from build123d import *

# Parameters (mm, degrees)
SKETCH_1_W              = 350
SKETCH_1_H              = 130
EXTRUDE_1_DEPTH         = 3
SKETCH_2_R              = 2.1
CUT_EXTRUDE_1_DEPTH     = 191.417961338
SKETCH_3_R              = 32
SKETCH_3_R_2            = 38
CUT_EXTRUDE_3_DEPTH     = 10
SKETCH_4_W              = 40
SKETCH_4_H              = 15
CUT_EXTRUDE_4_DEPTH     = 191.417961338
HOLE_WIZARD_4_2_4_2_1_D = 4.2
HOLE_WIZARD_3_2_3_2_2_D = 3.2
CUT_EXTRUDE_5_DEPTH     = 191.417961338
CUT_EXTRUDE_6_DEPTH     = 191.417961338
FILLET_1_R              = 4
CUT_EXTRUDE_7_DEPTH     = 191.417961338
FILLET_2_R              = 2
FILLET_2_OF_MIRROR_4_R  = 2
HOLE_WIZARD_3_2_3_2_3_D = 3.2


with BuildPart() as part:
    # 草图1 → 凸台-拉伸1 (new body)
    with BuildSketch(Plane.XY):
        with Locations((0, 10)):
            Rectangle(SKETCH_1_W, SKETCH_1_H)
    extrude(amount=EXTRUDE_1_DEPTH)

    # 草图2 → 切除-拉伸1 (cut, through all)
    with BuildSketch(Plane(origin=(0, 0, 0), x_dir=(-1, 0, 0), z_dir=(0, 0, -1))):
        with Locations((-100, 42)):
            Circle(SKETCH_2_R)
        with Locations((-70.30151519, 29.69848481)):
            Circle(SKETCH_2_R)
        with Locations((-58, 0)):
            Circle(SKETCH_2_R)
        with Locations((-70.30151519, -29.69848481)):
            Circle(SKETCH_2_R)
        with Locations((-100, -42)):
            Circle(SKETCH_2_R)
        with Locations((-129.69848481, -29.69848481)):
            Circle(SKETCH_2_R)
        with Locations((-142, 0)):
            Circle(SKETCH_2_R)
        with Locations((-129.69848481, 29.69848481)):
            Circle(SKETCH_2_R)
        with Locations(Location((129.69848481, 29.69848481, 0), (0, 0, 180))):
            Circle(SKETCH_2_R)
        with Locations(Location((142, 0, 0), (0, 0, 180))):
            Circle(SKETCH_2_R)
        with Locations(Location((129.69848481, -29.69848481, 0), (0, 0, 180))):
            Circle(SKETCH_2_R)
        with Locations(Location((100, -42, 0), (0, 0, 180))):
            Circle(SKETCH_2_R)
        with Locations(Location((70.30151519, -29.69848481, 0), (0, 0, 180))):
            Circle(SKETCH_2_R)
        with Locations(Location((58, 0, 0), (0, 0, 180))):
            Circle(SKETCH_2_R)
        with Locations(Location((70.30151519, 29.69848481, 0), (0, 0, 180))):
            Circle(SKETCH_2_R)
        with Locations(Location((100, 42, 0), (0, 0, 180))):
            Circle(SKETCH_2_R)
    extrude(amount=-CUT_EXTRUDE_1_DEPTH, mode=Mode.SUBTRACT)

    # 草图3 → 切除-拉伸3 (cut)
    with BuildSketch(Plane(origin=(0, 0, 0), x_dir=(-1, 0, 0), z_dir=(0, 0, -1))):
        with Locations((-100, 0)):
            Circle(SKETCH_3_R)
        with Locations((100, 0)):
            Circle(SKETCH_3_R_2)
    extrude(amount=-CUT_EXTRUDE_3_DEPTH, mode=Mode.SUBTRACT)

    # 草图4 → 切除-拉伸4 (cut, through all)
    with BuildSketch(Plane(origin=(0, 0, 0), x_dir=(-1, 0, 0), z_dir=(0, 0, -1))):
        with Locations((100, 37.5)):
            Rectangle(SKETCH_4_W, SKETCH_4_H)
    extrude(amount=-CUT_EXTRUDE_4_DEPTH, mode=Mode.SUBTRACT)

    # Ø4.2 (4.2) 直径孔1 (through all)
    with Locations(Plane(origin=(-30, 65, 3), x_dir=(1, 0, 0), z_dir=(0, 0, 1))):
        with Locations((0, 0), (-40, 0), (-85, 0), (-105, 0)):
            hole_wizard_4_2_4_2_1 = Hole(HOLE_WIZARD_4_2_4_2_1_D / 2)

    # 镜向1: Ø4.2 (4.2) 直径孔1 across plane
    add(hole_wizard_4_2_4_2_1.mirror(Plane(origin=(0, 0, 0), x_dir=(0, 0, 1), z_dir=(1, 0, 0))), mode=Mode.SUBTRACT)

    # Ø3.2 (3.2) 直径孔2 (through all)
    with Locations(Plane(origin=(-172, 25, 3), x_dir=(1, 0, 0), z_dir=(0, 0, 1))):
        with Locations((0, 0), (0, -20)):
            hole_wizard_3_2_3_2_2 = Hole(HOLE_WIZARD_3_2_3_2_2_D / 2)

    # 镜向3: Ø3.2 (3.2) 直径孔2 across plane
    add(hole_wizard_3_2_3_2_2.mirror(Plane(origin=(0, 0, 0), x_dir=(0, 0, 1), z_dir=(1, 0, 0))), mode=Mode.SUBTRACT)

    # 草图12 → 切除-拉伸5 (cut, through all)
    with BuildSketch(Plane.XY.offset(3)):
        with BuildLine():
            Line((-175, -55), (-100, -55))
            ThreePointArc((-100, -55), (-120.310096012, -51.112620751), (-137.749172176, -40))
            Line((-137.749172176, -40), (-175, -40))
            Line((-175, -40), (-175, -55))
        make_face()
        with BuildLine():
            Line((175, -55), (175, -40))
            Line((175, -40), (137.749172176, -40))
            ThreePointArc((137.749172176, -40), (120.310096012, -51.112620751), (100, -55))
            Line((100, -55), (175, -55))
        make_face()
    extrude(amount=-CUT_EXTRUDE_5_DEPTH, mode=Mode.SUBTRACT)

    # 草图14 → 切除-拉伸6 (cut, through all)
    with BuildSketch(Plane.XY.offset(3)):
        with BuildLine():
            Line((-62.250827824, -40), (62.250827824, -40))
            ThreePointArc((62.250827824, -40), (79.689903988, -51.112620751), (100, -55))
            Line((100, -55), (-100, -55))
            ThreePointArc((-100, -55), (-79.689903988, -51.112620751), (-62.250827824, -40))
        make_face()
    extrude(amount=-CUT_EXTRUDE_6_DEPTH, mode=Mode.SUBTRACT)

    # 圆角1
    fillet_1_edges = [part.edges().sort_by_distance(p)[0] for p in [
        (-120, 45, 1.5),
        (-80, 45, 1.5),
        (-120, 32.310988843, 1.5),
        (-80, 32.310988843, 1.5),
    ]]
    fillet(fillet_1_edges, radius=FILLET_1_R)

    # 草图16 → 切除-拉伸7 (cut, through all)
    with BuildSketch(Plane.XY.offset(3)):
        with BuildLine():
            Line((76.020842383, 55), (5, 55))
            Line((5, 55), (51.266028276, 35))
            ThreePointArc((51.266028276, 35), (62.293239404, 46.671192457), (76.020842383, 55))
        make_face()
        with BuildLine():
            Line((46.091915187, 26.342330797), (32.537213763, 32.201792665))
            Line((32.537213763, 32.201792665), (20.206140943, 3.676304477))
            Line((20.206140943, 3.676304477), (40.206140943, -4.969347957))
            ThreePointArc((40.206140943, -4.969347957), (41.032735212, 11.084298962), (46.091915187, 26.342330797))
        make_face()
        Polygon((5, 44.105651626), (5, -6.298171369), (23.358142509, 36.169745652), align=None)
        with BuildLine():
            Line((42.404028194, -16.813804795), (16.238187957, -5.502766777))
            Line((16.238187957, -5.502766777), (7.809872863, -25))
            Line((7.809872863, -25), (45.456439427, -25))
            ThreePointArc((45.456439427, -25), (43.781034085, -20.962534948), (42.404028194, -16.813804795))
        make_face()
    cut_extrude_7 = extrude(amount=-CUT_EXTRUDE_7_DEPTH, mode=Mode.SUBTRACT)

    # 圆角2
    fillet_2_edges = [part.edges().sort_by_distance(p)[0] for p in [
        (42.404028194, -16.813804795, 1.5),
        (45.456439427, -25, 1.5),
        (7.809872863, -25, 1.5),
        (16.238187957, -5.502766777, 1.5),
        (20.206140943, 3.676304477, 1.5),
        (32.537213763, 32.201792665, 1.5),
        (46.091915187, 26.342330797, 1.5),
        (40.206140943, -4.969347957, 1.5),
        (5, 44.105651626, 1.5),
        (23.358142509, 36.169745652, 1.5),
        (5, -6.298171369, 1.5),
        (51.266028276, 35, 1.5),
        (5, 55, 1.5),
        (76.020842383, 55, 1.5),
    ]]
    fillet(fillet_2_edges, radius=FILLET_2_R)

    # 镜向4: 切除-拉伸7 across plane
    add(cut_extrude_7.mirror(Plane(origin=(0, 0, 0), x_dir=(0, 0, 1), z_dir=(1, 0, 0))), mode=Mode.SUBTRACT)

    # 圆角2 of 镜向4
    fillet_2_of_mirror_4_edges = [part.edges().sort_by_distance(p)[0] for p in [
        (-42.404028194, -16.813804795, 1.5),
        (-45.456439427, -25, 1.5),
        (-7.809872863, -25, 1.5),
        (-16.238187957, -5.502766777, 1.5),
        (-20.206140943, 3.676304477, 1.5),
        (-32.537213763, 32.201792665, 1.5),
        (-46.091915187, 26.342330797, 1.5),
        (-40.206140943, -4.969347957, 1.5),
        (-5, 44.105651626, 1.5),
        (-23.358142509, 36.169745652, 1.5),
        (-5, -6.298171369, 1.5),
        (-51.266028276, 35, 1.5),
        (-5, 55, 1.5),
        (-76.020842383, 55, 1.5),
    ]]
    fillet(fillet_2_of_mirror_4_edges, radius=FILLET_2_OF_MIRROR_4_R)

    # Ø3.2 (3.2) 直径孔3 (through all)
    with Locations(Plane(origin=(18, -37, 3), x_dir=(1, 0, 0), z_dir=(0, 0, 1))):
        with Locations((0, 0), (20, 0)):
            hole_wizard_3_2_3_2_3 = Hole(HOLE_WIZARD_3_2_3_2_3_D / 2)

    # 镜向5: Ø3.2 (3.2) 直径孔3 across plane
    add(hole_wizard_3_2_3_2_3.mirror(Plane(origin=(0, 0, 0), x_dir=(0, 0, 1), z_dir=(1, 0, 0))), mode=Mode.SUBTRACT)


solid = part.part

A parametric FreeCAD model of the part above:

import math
import FreeCAD as App
import Part
import Sketcher
Q = App.Units.Quantity


def edges_at(feature, points):
    """Names of the edges that pass closest to the given points."""
    edges = feature.Shape.Edges
    near = lambda p: min(range(len(edges)), key=lambda i: edges[i].distToShape(Part.Vertex(*p))[0])
    return sorted({f"Edge{near(p) + 1}" for p in points})

doc = App.newDocument("Part")
body = doc.addObject("PartDesign::Body", "Body")

sketch1 = doc.addObject("Sketcher::SketchObject", "Sketch")
body.addObject(sketch1)
sketch1.AttachmentSupport = (doc.XY_Plane, [""])
sketch1.MapMode = "FlatFace"
sketch1.addGeometry(Part.LineSegment(App.Vector(-175, 75, 0), App.Vector(-175, -55, 0)), False)
sketch1.addGeometry(Part.LineSegment(App.Vector(-175, -55, 0), App.Vector(175, -55, 0)), False)
sketch1.addGeometry(Part.LineSegment(App.Vector(175, -55, 0), App.Vector(175, 75, 0)), False)
sketch1.addGeometry(Part.LineSegment(App.Vector(175, 75, 0), App.Vector(-175, 75, 0)), False)
sketch1.addConstraint(Sketcher.Constraint("Coincident", 0, 2, 1, 1))
sketch1.addConstraint(Sketcher.Constraint("Coincident", 1, 2, 2, 1))
sketch1.addConstraint(Sketcher.Constraint("Coincident", 2, 2, 3, 1))
sketch1.addConstraint(Sketcher.Constraint("Coincident", 3, 2, 0, 1))
sketch1.addConstraint(Sketcher.Constraint("Vertical", 0))
sketch1.addConstraint(Sketcher.Constraint("Horizontal", 1))
sketch1.addConstraint(Sketcher.Constraint("Vertical", 2))
sketch1.addConstraint(Sketcher.Constraint("Horizontal", 3))
sketch1.addConstraint(Sketcher.Constraint("DistanceX", 1, 1, 1, 2, Q("350 mm")))
sketch1.addConstraint(Sketcher.Constraint("DistanceY", 0, 2, 0, 1, Q("130 mm")))
sketch1.addConstraint(Sketcher.Constraint("DistanceX", 0, 2, -1, 1, Q("175 mm")))
sketch1.addConstraint(Sketcher.Constraint("DistanceY", 0, 2, -1, 1, Q("55 mm")))
pad1 = doc.addObject("PartDesign::Pad", "Pad")
body.addObject(pad1)
pad1.Profile = sketch1
pad1.Length = 3

sketch2 = doc.addObject("Sketcher::SketchObject", "Sketch001")
body.addObject(sketch2)
sketch2.AttachmentSupport = (doc.XY_Plane, [""])
sketch2.MapMode = "FlatFace"
sketch2.addGeometry(Part.Circle(App.Vector(100, 42, 0), App.Vector(0, 0, 1), 2.1), False)
sketch2.addGeometry(Part.Circle(App.Vector(70.3, 29.7, 0), App.Vector(0, 0, 1), 2.1), False)
sketch2.addGeometry(Part.Circle(App.Vector(58, 0, 0), App.Vector(0, 0, 1), 2.1), False)
sketch2.addGeometry(Part.Circle(App.Vector(70.3, -29.7, 0), App.Vector(0, 0, 1), 2.1), False)
sketch2.addGeometry(Part.Circle(App.Vector(100, -42, 0), App.Vector(0, 0, 1), 2.1), False)
sketch2.addGeometry(Part.Circle(App.Vector(129.7, -29.7, 0), App.Vector(0, 0, 1), 2.1), False)
sketch2.addGeometry(Part.Circle(App.Vector(142, 0, 0), App.Vector(0, 0, 1), 2.1), False)
sketch2.addGeometry(Part.Circle(App.Vector(129.7, 29.7, 0), App.Vector(0, 0, 1), 2.1), False)
sketch2.addGeometry(Part.Circle(App.Vector(-129.7, 29.7, 0), App.Vector(0, 0, 1), 2.1), False)
sketch2.addGeometry(Part.Circle(App.Vector(-142, 0, 0), App.Vector(0, 0, 1), 2.1), False)
sketch2.addGeometry(Part.Circle(App.Vector(-129.7, -29.7, 0), App.Vector(0, 0, 1), 2.1), False)
sketch2.addGeometry(Part.Circle(App.Vector(-100, -42, 0), App.Vector(0, 0, 1), 2.1), False)
sketch2.addGeometry(Part.Circle(App.Vector(-70.3, -29.7, 0), App.Vector(0, 0, 1), 2.1), False)
sketch2.addGeometry(Part.Circle(App.Vector(-58, 0, 0), App.Vector(0, 0, 1), 2.1), False)
sketch2.addGeometry(Part.Circle(App.Vector(-70.3, 29.7, 0), App.Vector(0, 0, 1), 2.1), False)
sketch2.addGeometry(Part.Circle(App.Vector(-100, 42, 0), App.Vector(0, 0, 1), 2.1), False)
sketch2.addConstraint(Sketcher.Constraint("Equal", 0, 1))
sketch2.addConstraint(Sketcher.Constraint("Equal", 1, 2))
sketch2.addConstraint(Sketcher.Constraint("Equal", 2, 3))
sketch2.addConstraint(Sketcher.Constraint("Equal", 3, 4))
sketch2.addConstraint(Sketcher.Constraint("Equal", 4, 5))
sketch2.addConstraint(Sketcher.Constraint("Equal", 5, 6))
sketch2.addConstraint(Sketcher.Constraint("Equal", 6, 7))
sketch2.addConstraint(Sketcher.Constraint("Equal", 7, 8))
sketch2.addConstraint(Sketcher.Constraint("Equal", 8, 9))
sketch2.addConstraint(Sketcher.Constraint("Equal", 9, 10))
sketch2.addConstraint(Sketcher.Constraint("Equal", 10, 11))
sketch2.addConstraint(Sketcher.Constraint("Equal", 11, 12))
sketch2.addConstraint(Sketcher.Constraint("Equal", 12, 13))
sketch2.addConstraint(Sketcher.Constraint("Equal", 13, 14))
sketch2.addConstraint(Sketcher.Constraint("Equal", 14, 15))
sketch2.addConstraint(Sketcher.Constraint("Symmetric", 5, 3, 8, 3, -1, 1))
sketch2.addConstraint(Sketcher.Constraint("Symmetric", 6, 3, 9, 3, -1, 1))
sketch2.addConstraint(Sketcher.Constraint("Symmetric", 7, 3, 10, 3, -1, 1))
sketch2.addConstraint(Sketcher.Constraint("Symmetric", 0, 3, 11, 3, -1, 1))
sketch2.addConstraint(Sketcher.Constraint("Symmetric", 1, 3, 12, 3, -1, 1))
sketch2.addConstraint(Sketcher.Constraint("Symmetric", 2, 3, 13, 3, -1, 1))
sketch2.addConstraint(Sketcher.Constraint("Symmetric", 3, 3, 14, 3, -1, 1))
sketch2.addConstraint(Sketcher.Constraint("Symmetric", 4, 3, 15, 3, -1, 1))
sketch2.addConstraint(Sketcher.Constraint("Symmetric", 7, 3, 8, 3, -2))
sketch2.addConstraint(Sketcher.Constraint("Symmetric", 4, 3, 11, 3, -2))
sketch2.addConstraint(Sketcher.Constraint("Symmetric", 3, 3, 12, 3, -2))
sketch2.addConstraint(Sketcher.Constraint("PointOnObject", 2, 3, -1))
sketch2.addConstraint(Sketcher.Constraint("PointOnObject", 6, 3, -1))
sketch2.addConstraint(Sketcher.Constraint("Horizontal", 3, 3, 5, 3))
sketch2.addConstraint(Sketcher.Constraint("Diameter", 0, Q("4.2 mm")))
sketch2.addConstraint(Sketcher.Constraint("DistanceX", -1, 1, 0, 3, Q("100 mm")))
sketch2.addConstraint(Sketcher.Constraint("DistanceY", -1, 1, 0, 3, Q("42 mm")))
sketch2.addConstraint(Sketcher.Constraint("DistanceX", -1, 1, 2, 3, Q("58 mm")))
sketch2.addConstraint(Sketcher.Constraint("DistanceX", -1, 1, 6, 3, Q("142 mm")))
sketch2.addConstraint(Sketcher.Constraint("DistanceX", 8, 3, 1, 3, Q("200 mm")))
sketch2.addConstraint(Sketcher.Constraint("DistanceY", 3, 3, 1, 3, Q("59.39697 mm")))
sketch2.addConstraint(Sketcher.Constraint("DistanceX", 3, 3, 5, 3, Q("59.39697 mm")))
pocket1 = doc.addObject("PartDesign::Pocket", "Pocket")
body.addObject(pocket1)
pocket1.Profile = sketch2
pocket1.Type = "ThroughAll"
pocket1.Reversed = True

sketch3 = doc.addObject("Sketcher::SketchObject", "Sketch002")
body.addObject(sketch3)
sketch3.AttachmentSupport = (doc.XY_Plane, [""])
sketch3.MapMode = "FlatFace"
sketch3.addGeometry(Part.Circle(App.Vector(100, 0, 0), App.Vector(0, 0, 1), 32), False)
sketch3.addGeometry(Part.Circle(App.Vector(-100, 0, 0), App.Vector(0, 0, 1), 38), False)
sketch3.addConstraint(Sketcher.Constraint("Symmetric", 0, 3, 1, 3, -1, 1))
sketch3.addConstraint(Sketcher.Constraint("PointOnObject", 0, 3, -1))
sketch3.addConstraint(Sketcher.Constraint("Diameter", 0, Q("64 mm")))
sketch3.addConstraint(Sketcher.Constraint("Diameter", 1, Q("76 mm")))
sketch3.addConstraint(Sketcher.Constraint("DistanceX", -1, 1, 0, 3, Q("100 mm")))
pocket2 = doc.addObject("PartDesign::Pocket", "Pocket001")
body.addObject(pocket2)
pocket2.Profile = sketch3
pocket2.Length = 10
pocket2.Reversed = True

sketch4 = doc.addObject("Sketcher::SketchObject", "Sketch003")
body.addObject(sketch4)
sketch4.AttachmentSupport = (doc.XY_Plane, [""])
sketch4.MapMode = "FlatFace"
sketch4.addGeometry(Part.LineSegment(App.Vector(-80, 45, 0), App.Vector(-80, 30, 0)), False)
sketch4.addGeometry(Part.LineSegment(App.Vector(-80, 30, 0), App.Vector(-120, 30, 0)), False)
sketch4.addGeometry(Part.LineSegment(App.Vector(-120, 30, 0), App.Vector(-120, 45, 0)), False)
sketch4.addGeometry(Part.LineSegment(App.Vector(-120, 45, 0), App.Vector(-80, 45, 0)), False)
sketch4.addConstraint(Sketcher.Constraint("Coincident", 0, 2, 1, 1))
sketch4.addConstraint(Sketcher.Constraint("Coincident", 1, 2, 2, 1))
sketch4.addConstraint(Sketcher.Constraint("Coincident", 2, 2, 3, 1))
sketch4.addConstraint(Sketcher.Constraint("Coincident", 3, 2, 0, 1))
sketch4.addConstraint(Sketcher.Constraint("Vertical", 0))
sketch4.addConstraint(Sketcher.Constraint("Horizontal", 1))
sketch4.addConstraint(Sketcher.Constraint("Vertical", 2))
sketch4.addConstraint(Sketcher.Constraint("Horizontal", 3))
sketch4.addConstraint(Sketcher.Constraint("DistanceX", 1, 2, 1, 1, Q("40 mm")))
sketch4.addConstraint(Sketcher.Constraint("DistanceY", 0, 2, 0, 1, Q("15 mm")))
sketch4.addConstraint(Sketcher.Constraint("DistanceX", 0, 2, -1, 1, Q("80 mm")))
sketch4.addConstraint(Sketcher.Constraint("DistanceY", -1, 1, 0, 2, Q("30 mm")))
pocket3 = doc.addObject("PartDesign::Pocket", "Pocket002")
body.addObject(pocket3)
pocket3.Profile = sketch4
pocket3.Type = "ThroughAll"
pocket3.Reversed = True

sketch5 = doc.addObject("Sketcher::SketchObject", "Sketch004")
body.addObject(sketch5)
sketch5.AttachmentSupport = (doc.XY_Plane, [""])
sketch5.MapMode = "FlatFace"
sketch5.AttachmentOffset = App.Placement(App.Vector(0, 0, 3), App.Rotation())
sketch5.addGeometry(Part.Circle(App.Vector(-30, 65, 0), App.Vector(0, 0, 1), 2.1), False)
sketch5.addGeometry(Part.Circle(App.Vector(-70, 65, 0), App.Vector(0, 0, 1), 2.1), False)
sketch5.addGeometry(Part.Circle(App.Vector(-115, 65, 0), App.Vector(0, 0, 1), 2.1), False)
sketch5.addGeometry(Part.Circle(App.Vector(-135, 65, 0), App.Vector(0, 0, 1), 2.1), False)
sketch5.addConstraint(Sketcher.Constraint("Equal", 0, 1))
sketch5.addConstraint(Sketcher.Constraint("Equal", 1, 2))
sketch5.addConstraint(Sketcher.Constraint("Equal", 2, 3))
sketch5.addConstraint(Sketcher.Constraint("Horizontal", 0, 3, 1, 3))
sketch5.addConstraint(Sketcher.Constraint("Horizontal", 1, 3, 2, 3))
sketch5.addConstraint(Sketcher.Constraint("Horizontal", 2, 3, 3, 3))
sketch5.addConstraint(Sketcher.Constraint("Diameter", 0, Q("4.2 mm")))
sketch5.addConstraint(Sketcher.Constraint("DistanceX", 0, 3, -1, 1, Q("30 mm")))
sketch5.addConstraint(Sketcher.Constraint("DistanceY", -1, 1, 0, 3, Q("65 mm")))
sketch5.addConstraint(Sketcher.Constraint("DistanceX", 1, 3, -1, 1, Q("70 mm")))
sketch5.addConstraint(Sketcher.Constraint("DistanceX", 2, 3, -1, 1, Q("115 mm")))
sketch5.addConstraint(Sketcher.Constraint("DistanceX", 3, 3, -1, 1, Q("135 mm")))
doc.recompute()
hole = doc.addObject("PartDesign::Hole", "Hole")
body.addObject(hole)
hole.Profile = sketch5
hole.ThreadType = "None"
hole.Diameter = 4.2
hole.DepthType = "ThroughAll"
doc.recompute()

mirrored = doc.addObject("PartDesign::Mirrored", "Mirrored")
body.addObject(mirrored)
mirrored.Originals = [hole]
mirrored.MirrorPlane = (doc.YZ_Plane, [""])
body.Tip = mirrored

sketch6 = doc.addObject("Sketcher::SketchObject", "Sketch005")
body.addObject(sketch6)
sketch6.AttachmentSupport = (doc.XY_Plane, [""])
sketch6.MapMode = "FlatFace"
sketch6.AttachmentOffset = App.Placement(App.Vector(0, 0, 3), App.Rotation())
sketch6.addGeometry(Part.Circle(App.Vector(-172, 25, 0), App.Vector(0, 0, 1), 1.6), False)
sketch6.addGeometry(Part.Circle(App.Vector(-172, 5, 0), App.Vector(0, 0, 1), 1.6), False)
sketch6.addConstraint(Sketcher.Constraint("Equal", 0, 1))
sketch6.addConstraint(Sketcher.Constraint("Vertical", 0, 3, 1, 3))
sketch6.addConstraint(Sketcher.Constraint("Diameter", 0, Q("3.2 mm")))
sketch6.addConstraint(Sketcher.Constraint("DistanceX", 0, 3, -1, 1, Q("172 mm")))
sketch6.addConstraint(Sketcher.Constraint("DistanceY", -1, 1, 0, 3, Q("25 mm")))
sketch6.addConstraint(Sketcher.Constraint("DistanceY", -1, 1, 1, 3, Q("5 mm")))
doc.recompute()
hole2 = doc.addObject("PartDesign::Hole", "Hole001")
body.addObject(hole2)
hole2.Profile = sketch6
hole2.ThreadType = "None"
hole2.Diameter = 3.2
hole2.DepthType = "ThroughAll"
doc.recompute()

mirrored2 = doc.addObject("PartDesign::Mirrored", "Mirrored001")
body.addObject(mirrored2)
mirrored2.Originals = [hole2]
mirrored2.MirrorPlane = (doc.YZ_Plane, [""])
body.Tip = mirrored2

sketch7 = doc.addObject("Sketcher::SketchObject", "Sketch006")
body.addObject(sketch7)
sketch7.AttachmentSupport = (doc.XY_Plane, [""])
sketch7.MapMode = "FlatFace"
sketch7.AttachmentOffset = App.Placement(App.Vector(0, 0, 3), App.Rotation())
sketch7.addGeometry(Part.LineSegment(App.Vector(-175, -55, 0), App.Vector(-100, -55, 0)), False)
sketch7.addGeometry(Part.ArcOfCircle(Part.Circle(App.Vector(-100, 0, 0), App.Vector(0, 0, 1), 55), math.radians(-133), math.radians(-90)), False)
sketch7.addGeometry(Part.LineSegment(App.Vector(-138, -40, 0), App.Vector(-175, -40, 0)), False)
sketch7.addGeometry(Part.LineSegment(App.Vector(-175, -40, 0), App.Vector(-175, -55, 0)), False)
sketch7.addGeometry(Part.LineSegment(App.Vector(175, -55, 0), App.Vector(175, -40, 0)), False)
sketch7.addGeometry(Part.LineSegment(App.Vector(175, -40, 0), App.Vector(138, -40, 0)), False)
sketch7.addGeometry(Part.ArcOfCircle(Part.Circle(App.Vector(100, 0, 0), App.Vector(0, 0, 1), 55), math.radians(-90), math.radians(-47)), False)
sketch7.addGeometry(Part.LineSegment(App.Vector(100, -55, 0), App.Vector(175, -55, 0)), False)
sketch7.addConstraint(Sketcher.Constraint("Tangent", 0, 2, 1, 2))
sketch7.addConstraint(Sketcher.Constraint("Coincident", 1, 1, 2, 1))
sketch7.addConstraint(Sketcher.Constraint("Coincident", 2, 2, 3, 1))
sketch7.addConstraint(Sketcher.Constraint("Coincident", 3, 2, 0, 1))
sketch7.addConstraint(Sketcher.Constraint("Coincident", 4, 2, 5, 1))
sketch7.addConstraint(Sketcher.Constraint("Coincident", 5, 2, 6, 2))
sketch7.addConstraint(Sketcher.Constraint("Tangent", 6, 1, 7, 1))
sketch7.addConstraint(Sketcher.Constraint("Coincident", 7, 2, 4, 1))
sketch7.addConstraint(Sketcher.Constraint("Horizontal", 0))
sketch7.addConstraint(Sketcher.Constraint("Horizontal", 2))
sketch7.addConstraint(Sketcher.Constraint("Vertical", 3))
sketch7.addConstraint(Sketcher.Constraint("Vertical", 4))
sketch7.addConstraint(Sketcher.Constraint("Horizontal", 5))
sketch7.addConstraint(Sketcher.Constraint("Horizontal", 7))
sketch7.addConstraint(Sketcher.Constraint("Equal", 1, 6))
sketch7.addConstraint(Sketcher.Constraint("Symmetric", 1, 3, 6, 3, -1, 1))
sketch7.addConstraint(Sketcher.Constraint("Symmetric", 2, 2, 4, 2, -2))
sketch7.addConstraint(Sketcher.Constraint("PointOnObject", 1, 3, -1))
sketch7.addConstraint(Sketcher.Constraint("Radius", 1, Q("55 mm")))
sketch7.addConstraint(Sketcher.Constraint("DistanceX", 0, 1, 0, 2, Q("75 mm")))
sketch7.addConstraint(Sketcher.Constraint("DistanceY", 3, 2, 3, 1, Q("15 mm")))
sketch7.addConstraint(Sketcher.Constraint("DistanceX", 1, 3, -1, 1, Q("100 mm")))
pocket4 = doc.addObject("PartDesign::Pocket", "Pocket003")
body.addObject(pocket4)
pocket4.Profile = sketch7
pocket4.Type = "ThroughAll"

sketch8 = doc.addObject("Sketcher::SketchObject", "Sketch007")
body.addObject(sketch8)
sketch8.AttachmentSupport = (doc.XY_Plane, [""])
sketch8.MapMode = "FlatFace"
sketch8.AttachmentOffset = App.Placement(App.Vector(0, 0, 3), App.Rotation())
sketch8.addGeometry(Part.LineSegment(App.Vector(62, -40, 0), App.Vector(-62, -40, 0)), False)
sketch8.addGeometry(Part.ArcOfCircle(Part.Circle(App.Vector(-100, 0, 0), App.Vector(0, 0, 1), 55), math.radians(-90), math.radians(-47)), False)
sketch8.addGeometry(Part.LineSegment(App.Vector(-100, -55, 0), App.Vector(100, -55, 0)), False)
sketch8.addGeometry(Part.ArcOfCircle(Part.Circle(App.Vector(100, 0, 0), App.Vector(0, 0, 1), 55), math.radians(-133), math.radians(-90)), False)
sketch8.addConstraint(Sketcher.Constraint("Coincident", 0, 2, 1, 2))
sketch8.addConstraint(Sketcher.Constraint("Tangent", 1, 1, 2, 1))
sketch8.addConstraint(Sketcher.Constraint("Tangent", 2, 2, 3, 2))
sketch8.addConstraint(Sketcher.Constraint("Coincident", 3, 1, 0, 1))
sketch8.addConstraint(Sketcher.Constraint("Horizontal", 0))
sketch8.addConstraint(Sketcher.Constraint("Horizontal", 2))
sketch8.addConstraint(Sketcher.Constraint("Equal", 1, 3))
sketch8.addConstraint(Sketcher.Constraint("Symmetric", 1, 3, 3, 3, -1, 1))
sketch8.addConstraint(Sketcher.Constraint("Radius", 1, Q("55 mm")))
sketch8.addConstraint(Sketcher.Constraint("DistanceX", 2, 1, 2, 2, Q("200 mm")))
sketch8.addConstraint(Sketcher.Constraint("DistanceY", 0, 2, -1, 1, Q("40 mm")))
pocket5 = doc.addObject("PartDesign::Pocket", "Pocket004")
body.addObject(pocket5)
pocket5.Profile = sketch8
pocket5.Type = "ThroughAll"
doc.recompute()

fillet = doc.addObject("PartDesign::Fillet", "Fillet")
body.addObject(fillet)
fillet.Base = (pocket5, edges_at(pocket5, [
    (-120, 45, 1.5),
    (-80, 45, 1.5),
    (-120, 32.311, 1.5),
    (-80, 32.311, 1.5),
]))
fillet.Radius = 4

sketch9 = doc.addObject("Sketcher::SketchObject", "Sketch008")
body.addObject(sketch9)
sketch9.AttachmentSupport = (doc.XY_Plane, [""])
sketch9.MapMode = "FlatFace"
sketch9.AttachmentOffset = App.Placement(App.Vector(0, 0, 3), App.Rotation())
sketch9.addGeometry(Part.LineSegment(App.Vector(76, 55, 0), App.Vector(5, 55, 0)), False)
sketch9.addGeometry(Part.LineSegment(App.Vector(5, 55, 0), App.Vector(51, 35, 0)), False)
sketch9.addGeometry(Part.ArcOfCircle(Part.Circle(App.Vector(100, 0, 0), App.Vector(0, 0, 1), 60), math.radians(114), math.radians(144)), False)
sketch9.addGeometry(Part.LineSegment(App.Vector(46, 26, 0), App.Vector(33, 32, 0)), False)
sketch9.addGeometry(Part.LineSegment(App.Vector(33, 32, 0), App.Vector(20, 4, 0)), False)
sketch9.addGeometry(Part.LineSegment(App.Vector(20, 4, 0), App.Vector(40, -5, 0)), False)
sketch9.addGeometry(Part.ArcOfCircle(Part.Circle(App.Vector(100, 0, 0), App.Vector(0, 0, 1), 60), math.radians(154), math.radians(185)), False)
sketch9.addGeometry(Part.LineSegment(App.Vector(5, 44, 0), App.Vector(5, -6, 0)), False)
sketch9.addGeometry(Part.LineSegment(App.Vector(5, -6, 0), App.Vector(23, 36, 0)), False)
sketch9.addGeometry(Part.LineSegment(App.Vector(23, 36, 0), App.Vector(5, 44, 0)), False)
sketch9.addGeometry(Part.LineSegment(App.Vector(42, -17, 0), App.Vector(16, -6, 0)), False)
sketch9.addGeometry(Part.LineSegment(App.Vector(16, -6, 0), App.Vector(8, -25, 0)), False)
sketch9.addGeometry(Part.LineSegment(App.Vector(8, -25, 0), App.Vector(45, -25, 0)), False)
sketch9.addGeometry(Part.ArcOfCircle(Part.Circle(App.Vector(100, 0, 0), App.Vector(0, 0, 1), 60), math.radians(-163.73), math.radians(-155.38)), False)
sketch9.addConstraint(Sketcher.Constraint("Coincident", 0, 2, 1, 1))
sketch9.addConstraint(Sketcher.Constraint("Coincident", 1, 2, 2, 2))
sketch9.addConstraint(Sketcher.Constraint("Coincident", 2, 1, 0, 1))
sketch9.addConstraint(Sketcher.Constraint("Coincident", 3, 2, 4, 1))
sketch9.addConstraint(Sketcher.Constraint("Coincident", 4, 2, 5, 1))
sketch9.addConstraint(Sketcher.Constraint("Coincident", 5, 2, 6, 2))
sketch9.addConstraint(Sketcher.Constraint("Coincident", 6, 1, 3, 1))
sketch9.addConstraint(Sketcher.Constraint("Coincident", 7, 2, 8, 1))
sketch9.addConstraint(Sketcher.Constraint("Coincident", 8, 2, 9, 1))
sketch9.addConstraint(Sketcher.Constraint("Coincident", 9, 2, 7, 1))
sketch9.addConstraint(Sketcher.Constraint("Coincident", 10, 2, 11, 1))
sketch9.addConstraint(Sketcher.Constraint("Coincident", 11, 2, 12, 1))
sketch9.addConstraint(Sketcher.Constraint("Coincident", 12, 2, 13, 2))
sketch9.addConstraint(Sketcher.Constraint("Coincident", 13, 1, 10, 1))
sketch9.addConstraint(Sketcher.Constraint("Horizontal", 0))
sketch9.addConstraint(Sketcher.Constraint("Vertical", 7))
sketch9.addConstraint(Sketcher.Constraint("Horizontal", 12))
sketch9.addConstraint(Sketcher.Constraint("Coincident", 6, 3, 2, 3))
sketch9.addConstraint(Sketcher.Constraint("Coincident", 13, 3, 2, 3))
sketch9.addConstraint(Sketcher.Constraint("Equal", 2, 6))
sketch9.addConstraint(Sketcher.Constraint("Equal", 6, 13))
sketch9.addConstraint(Sketcher.Constraint("PointOnObject", 2, 3, -1))
sketch9.addConstraint(Sketcher.Constraint("Parallel", 1, 3))
sketch9.addConstraint(Sketcher.Constraint("Perpendicular", 3, 4))
sketch9.addConstraint(Sketcher.Constraint("Perpendicular", 4, 5))
sketch9.addConstraint(Sketcher.Constraint("Perpendicular", 5, 8))
sketch9.addConstraint(Sketcher.Constraint("Perpendicular", 8, 9))
sketch9.addConstraint(Sketcher.Constraint("Parallel", 9, 10))
sketch9.addConstraint(Sketcher.Constraint("Perpendicular", 10, 11))
sketch9.addConstraint(Sketcher.Constraint("Vertical", 0, 2, 7, 2))
sketch9.addConstraint(Sketcher.Constraint("Radius", 2, Q("60 mm")))
sketch9.addConstraint(Sketcher.Constraint("Distance", 9, Q("20 mm")))
sketch9.addConstraint(Sketcher.Constraint("DistanceX", -1, 1, 2, 3, Q("100 mm")))
sketch9.addConstraint(Sketcher.Constraint("DistanceX", -1, 1, 0, 2, Q("5 mm")))
sketch9.addConstraint(Sketcher.Constraint("DistanceY", -1, 1, 0, 2, Q("55 mm")))
sketch9.addConstraint(Sketcher.Constraint("DistanceY", -1, 1, 1, 2, Q("35 mm")))
sketch9.addConstraint(Sketcher.Constraint("DistanceY", 11, 2, -1, 1, Q("25 mm")))
sketch9.addConstraint(Sketcher.Constraint("DistanceX", 4, 2, 5, 2, Q("20 mm")))
sketch9.addConstraint(Sketcher.Constraint("DistanceX", 4, 2, 8, 2, Q("3.152002 mm")))
sketch9.addConstraint(Sketcher.Constraint("Distance", 4, Q("31.076661 mm")))
sketch9.addConstraint(Sketcher.Constraint("DistanceX", 12, 1, 12, 2, Q("37.646567 mm")))
sketch9.addConstraint(Sketcher.Constraint("DistanceY", 7, 2, -1, 1, Q("6.298171 mm")))
sketch9.addConstraint(Sketcher.Constraint("DistanceX", -1, 1, 13, 1, Q("42.404028 mm")))
pocket6 = doc.addObject("PartDesign::Pocket", "Pocket005")
body.addObject(pocket6)
pocket6.Profile = sketch9
pocket6.Type = "ThroughAll"
doc.recompute()

fillet2 = doc.addObject("PartDesign::Fillet", "Fillet001")
body.addObject(fillet2)
fillet2.Base = (pocket6, edges_at(pocket6, [
    (42.404, -16.814, 1.5),
    (45.456, -25, 1.5),
    (7.81, -25, 1.5),
    (16.238, -5.503, 1.5),
    (20.206, 3.676, 1.5),
    (32.537, 32.202, 1.5),
    (46.092, 26.342, 1.5),
    (40.206, -4.969, 1.5),
    (5, 44.106, 1.5),
    (23.358, 36.17, 1.5),
    (5, -6.298, 1.5),
    (51.266, 35, 1.5),
    (5, 55, 1.5),
    (76.021, 55, 1.5),
]))
fillet2.Radius = 2
doc.recompute()

mirrored3 = doc.addObject("PartDesign::Mirrored", "Mirrored002")
body.addObject(mirrored3)
mirrored3.Originals = [pocket6]
mirrored3.MirrorPlane = (doc.YZ_Plane, [""])
body.Tip = mirrored3
doc.recompute()

fillet3 = doc.addObject("PartDesign::Fillet", "Fillet002")
body.addObject(fillet3)
fillet3.Base = (mirrored3, edges_at(mirrored3, [
    (-42.404, -16.814, 1.5),
    (-45.456, -25, 1.5),
    (-7.81, -25, 1.5),
    (-16.238, -5.503, 1.5),
    (-20.206, 3.676, 1.5),
    (-32.537, 32.202, 1.5),
    (-46.092, 26.342, 1.5),
    (-40.206, -4.969, 1.5),
    (-5, 44.106, 1.5),
    (-23.358, 36.17, 1.5),
    (-5, -6.298, 1.5),
    (-51.266, 35, 1.5),
    (-5, 55, 1.5),
    (-76.021, 55, 1.5),
]))
fillet3.Radius = 2

sketch10 = doc.addObject("Sketcher::SketchObject", "Sketch009")
body.addObject(sketch10)
sketch10.AttachmentSupport = (doc.XY_Plane, [""])
sketch10.MapMode = "FlatFace"
sketch10.AttachmentOffset = App.Placement(App.Vector(0, 0, 3), App.Rotation())
sketch10.addGeometry(Part.Circle(App.Vector(18, -37, 0), App.Vector(0, 0, 1), 1.6), False)
sketch10.addGeometry(Part.Circle(App.Vector(38, -37, 0), App.Vector(0, 0, 1), 1.6), False)
sketch10.addConstraint(Sketcher.Constraint("Equal", 0, 1))
sketch10.addConstraint(Sketcher.Constraint("Horizontal", 0, 3, 1, 3))
sketch10.addConstraint(Sketcher.Constraint("Diameter", 0, Q("3.2 mm")))
sketch10.addConstraint(Sketcher.Constraint("DistanceX", -1, 1, 0, 3, Q("18 mm")))
sketch10.addConstraint(Sketcher.Constraint("DistanceY", 0, 3, -1, 1, Q("37 mm")))
sketch10.addConstraint(Sketcher.Constraint("DistanceX", -1, 1, 1, 3, Q("38 mm")))
doc.recompute()
hole3 = doc.addObject("PartDesign::Hole", "Hole002")
body.addObject(hole3)
hole3.Profile = sketch10
hole3.ThreadType = "None"
hole3.Diameter = 3.2
hole3.DepthType = "ThroughAll"
doc.recompute()

mirrored4 = doc.addObject("PartDesign::Mirrored", "Mirrored003")
body.addObject(mirrored4)
mirrored4.Originals = [hole3]
mirrored4.MirrorPlane = (doc.YZ_Plane, [""])
body.Tip = mirrored4

doc.recompute()
